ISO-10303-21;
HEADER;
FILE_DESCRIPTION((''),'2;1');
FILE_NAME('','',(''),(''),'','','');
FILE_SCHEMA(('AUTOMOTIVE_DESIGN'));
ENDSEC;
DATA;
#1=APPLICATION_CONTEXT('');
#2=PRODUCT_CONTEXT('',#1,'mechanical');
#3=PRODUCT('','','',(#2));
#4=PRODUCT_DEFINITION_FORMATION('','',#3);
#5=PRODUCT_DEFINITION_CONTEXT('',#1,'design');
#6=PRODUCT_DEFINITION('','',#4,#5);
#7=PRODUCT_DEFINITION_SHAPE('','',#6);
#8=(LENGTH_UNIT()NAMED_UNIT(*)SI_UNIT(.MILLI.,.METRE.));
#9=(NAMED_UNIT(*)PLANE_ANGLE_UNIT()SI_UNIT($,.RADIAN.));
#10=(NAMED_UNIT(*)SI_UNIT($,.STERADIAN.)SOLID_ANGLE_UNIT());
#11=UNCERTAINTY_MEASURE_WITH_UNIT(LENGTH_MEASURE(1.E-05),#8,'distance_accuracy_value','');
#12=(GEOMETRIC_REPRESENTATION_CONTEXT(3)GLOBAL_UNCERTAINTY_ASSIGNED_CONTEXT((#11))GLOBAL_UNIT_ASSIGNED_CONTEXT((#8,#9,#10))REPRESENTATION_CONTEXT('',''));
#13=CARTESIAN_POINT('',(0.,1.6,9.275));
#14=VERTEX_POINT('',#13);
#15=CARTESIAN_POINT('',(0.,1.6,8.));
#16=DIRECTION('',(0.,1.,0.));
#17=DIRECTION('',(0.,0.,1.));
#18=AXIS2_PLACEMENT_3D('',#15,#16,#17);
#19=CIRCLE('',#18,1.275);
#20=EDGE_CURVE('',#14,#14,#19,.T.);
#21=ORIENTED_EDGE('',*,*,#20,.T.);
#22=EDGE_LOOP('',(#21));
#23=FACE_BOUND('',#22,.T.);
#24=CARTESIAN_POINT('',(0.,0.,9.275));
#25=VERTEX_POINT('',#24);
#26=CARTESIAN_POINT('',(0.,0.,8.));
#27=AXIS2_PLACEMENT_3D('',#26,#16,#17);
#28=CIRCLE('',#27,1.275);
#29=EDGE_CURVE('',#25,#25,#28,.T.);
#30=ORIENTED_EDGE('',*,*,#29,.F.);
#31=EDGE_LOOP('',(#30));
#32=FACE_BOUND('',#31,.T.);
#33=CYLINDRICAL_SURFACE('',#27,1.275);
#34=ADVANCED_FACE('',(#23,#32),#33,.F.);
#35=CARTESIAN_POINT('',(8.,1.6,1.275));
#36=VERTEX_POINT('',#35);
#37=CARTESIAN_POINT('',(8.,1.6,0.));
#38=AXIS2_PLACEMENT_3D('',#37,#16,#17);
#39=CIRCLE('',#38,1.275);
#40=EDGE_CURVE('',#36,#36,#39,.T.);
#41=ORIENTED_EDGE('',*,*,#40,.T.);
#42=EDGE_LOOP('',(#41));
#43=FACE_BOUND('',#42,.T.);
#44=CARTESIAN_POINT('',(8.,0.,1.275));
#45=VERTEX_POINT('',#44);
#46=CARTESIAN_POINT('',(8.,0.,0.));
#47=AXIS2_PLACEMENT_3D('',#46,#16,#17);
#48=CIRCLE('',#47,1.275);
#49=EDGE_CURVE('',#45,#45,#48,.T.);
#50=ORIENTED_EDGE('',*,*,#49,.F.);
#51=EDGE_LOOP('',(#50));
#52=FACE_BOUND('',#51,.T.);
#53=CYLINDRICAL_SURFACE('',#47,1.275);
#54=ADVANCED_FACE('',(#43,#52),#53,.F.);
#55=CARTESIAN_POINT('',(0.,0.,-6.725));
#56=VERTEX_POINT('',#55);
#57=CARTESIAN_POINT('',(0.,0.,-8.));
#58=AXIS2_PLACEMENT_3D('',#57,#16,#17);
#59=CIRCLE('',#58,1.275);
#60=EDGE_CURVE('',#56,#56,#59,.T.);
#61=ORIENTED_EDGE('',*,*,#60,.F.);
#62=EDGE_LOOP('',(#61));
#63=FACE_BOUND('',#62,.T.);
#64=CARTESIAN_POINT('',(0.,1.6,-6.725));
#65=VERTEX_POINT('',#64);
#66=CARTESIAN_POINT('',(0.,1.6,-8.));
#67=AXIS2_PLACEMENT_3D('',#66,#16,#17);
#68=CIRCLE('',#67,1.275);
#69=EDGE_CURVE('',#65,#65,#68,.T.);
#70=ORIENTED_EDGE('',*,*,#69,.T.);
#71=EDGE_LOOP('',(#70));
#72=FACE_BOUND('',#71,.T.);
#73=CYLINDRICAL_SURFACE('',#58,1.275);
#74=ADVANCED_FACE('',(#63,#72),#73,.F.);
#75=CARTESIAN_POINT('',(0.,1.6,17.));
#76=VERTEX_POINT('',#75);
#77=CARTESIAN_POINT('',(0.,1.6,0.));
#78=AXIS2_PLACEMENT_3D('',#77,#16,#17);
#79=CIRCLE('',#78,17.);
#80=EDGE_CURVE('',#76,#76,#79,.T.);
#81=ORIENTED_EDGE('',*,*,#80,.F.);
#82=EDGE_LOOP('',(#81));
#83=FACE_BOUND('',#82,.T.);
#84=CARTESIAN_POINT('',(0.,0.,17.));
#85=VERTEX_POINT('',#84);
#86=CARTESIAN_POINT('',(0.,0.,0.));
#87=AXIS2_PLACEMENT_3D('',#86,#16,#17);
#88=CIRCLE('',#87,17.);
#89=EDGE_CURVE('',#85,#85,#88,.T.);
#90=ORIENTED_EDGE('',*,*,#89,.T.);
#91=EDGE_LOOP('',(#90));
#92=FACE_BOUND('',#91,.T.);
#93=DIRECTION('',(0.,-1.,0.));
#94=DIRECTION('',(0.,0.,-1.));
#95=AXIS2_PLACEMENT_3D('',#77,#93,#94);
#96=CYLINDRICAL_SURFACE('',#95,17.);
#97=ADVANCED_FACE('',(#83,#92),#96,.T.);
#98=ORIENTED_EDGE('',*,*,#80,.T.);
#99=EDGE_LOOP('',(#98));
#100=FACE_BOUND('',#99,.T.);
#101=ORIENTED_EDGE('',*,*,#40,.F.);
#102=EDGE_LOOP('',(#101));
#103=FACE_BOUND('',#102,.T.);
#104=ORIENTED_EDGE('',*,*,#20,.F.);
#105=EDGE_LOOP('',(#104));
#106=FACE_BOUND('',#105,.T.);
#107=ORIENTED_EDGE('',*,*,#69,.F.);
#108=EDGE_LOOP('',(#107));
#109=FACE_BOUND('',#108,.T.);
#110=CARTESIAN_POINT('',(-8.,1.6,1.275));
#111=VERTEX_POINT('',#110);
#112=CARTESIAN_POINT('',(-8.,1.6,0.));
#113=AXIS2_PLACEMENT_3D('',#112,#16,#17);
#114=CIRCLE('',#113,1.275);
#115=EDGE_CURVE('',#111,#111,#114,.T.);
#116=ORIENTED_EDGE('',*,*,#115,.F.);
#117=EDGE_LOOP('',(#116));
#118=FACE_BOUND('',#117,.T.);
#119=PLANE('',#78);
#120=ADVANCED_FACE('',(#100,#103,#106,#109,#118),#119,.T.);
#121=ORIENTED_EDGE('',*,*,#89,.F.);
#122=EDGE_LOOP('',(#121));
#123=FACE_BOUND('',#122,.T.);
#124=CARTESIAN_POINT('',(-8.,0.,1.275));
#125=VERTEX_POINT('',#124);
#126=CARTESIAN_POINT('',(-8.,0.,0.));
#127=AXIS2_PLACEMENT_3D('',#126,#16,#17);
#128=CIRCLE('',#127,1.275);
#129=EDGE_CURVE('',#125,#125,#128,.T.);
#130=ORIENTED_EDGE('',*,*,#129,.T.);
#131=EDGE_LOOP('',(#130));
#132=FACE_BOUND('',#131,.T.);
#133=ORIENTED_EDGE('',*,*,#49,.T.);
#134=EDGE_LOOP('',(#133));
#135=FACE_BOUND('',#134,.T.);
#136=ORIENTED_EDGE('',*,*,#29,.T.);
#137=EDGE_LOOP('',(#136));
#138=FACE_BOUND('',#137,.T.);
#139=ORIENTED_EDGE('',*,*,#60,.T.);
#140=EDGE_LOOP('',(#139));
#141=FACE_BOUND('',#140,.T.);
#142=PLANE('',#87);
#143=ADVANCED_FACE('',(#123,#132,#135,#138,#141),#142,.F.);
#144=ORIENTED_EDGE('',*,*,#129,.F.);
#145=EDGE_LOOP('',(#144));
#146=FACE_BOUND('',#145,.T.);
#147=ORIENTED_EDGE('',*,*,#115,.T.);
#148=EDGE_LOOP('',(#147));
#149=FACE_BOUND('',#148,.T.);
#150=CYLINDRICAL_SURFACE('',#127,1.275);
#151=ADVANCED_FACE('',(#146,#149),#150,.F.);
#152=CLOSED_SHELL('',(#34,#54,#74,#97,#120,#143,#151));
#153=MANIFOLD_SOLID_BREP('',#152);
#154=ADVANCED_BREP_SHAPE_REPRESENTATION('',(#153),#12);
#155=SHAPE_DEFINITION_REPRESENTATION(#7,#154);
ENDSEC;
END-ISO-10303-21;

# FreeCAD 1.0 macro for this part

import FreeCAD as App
import Part
import Sketcher
from FreeCAD import Vector

doc = App.newDocument("Part")
params = doc.addObject("Spreadsheet::Sheet", "Params")
for row, (alias, value) in enumerate([
    ("sketch1_diameter", "34 mm"),
    ("pad1_length", "1.6 mm"),
    ("sketch2_diameter", "2.55 mm"),
], start=1):
    params.set(f"A{row}", alias)
    params.set(f"B{row}", "=" + value)
    params.setAlias(f"B{row}", alias)

body = doc.addObject("PartDesign::Body", "Body")

sketch1 = body.newObject("Sketcher::SketchObject", "Sketch")
sketch1.AttachmentSupport = (doc.getObject("XZ_Plane"), [""])
sketch1.MapMode = "FlatFace"
sketch1.addGeometry(Part.Circle(Vector(0, 0, 0), Vector(0, 0, 1), 17), False)
sketch1.addConstraint(Sketcher.Constraint("Coincident", 0, 3, -1, 1))
sketch1.addConstraint(Sketcher.Constraint("Diameter", 0, 34.0))
sketch1.setExpression("Constraints[1]", "Params.sketch1_diameter")
pad1 = body.newObject("PartDesign::Pad", "Pad")
pad1.Profile = sketch1
pad1.setExpression("Length", "Params.pad1_length")
pad1.Reversed = True

sketch2 = body.newObject("Sketcher::SketchObject", "Sketch001")
sketch2.AttachmentSupport = (doc.getObject("XZ_Plane"), [""])
sketch2.MapMode = "FlatFace"
sketch2.AttachmentOffset = App.Placement(Vector(0, 0, -1.6), App.Rotation())
sketch2.addGeometry(Part.Circle(Vector(8, 0, 0), Vector(0, 0, 1), 1.275), False)
sketch2.addGeometry(Part.Circle(Vector(0, 8, 0), Vector(0, 0, 1), 1.275), False)
sketch2.addGeometry(Part.Circle(Vector(-8, 0, 0), Vector(0, 0, 1), 1.275), False)
sketch2.addGeometry(Part.Circle(Vector(0, -8, 0), Vector(0, 0, 1), 1.275), False)
sketch2.addConstraint(Sketcher.Constraint("Equal", 0, 1))
sketch2.addConstraint(Sketcher.Constraint("Equal", 1, 2))
sketch2.addConstraint(Sketcher.Constraint("Equal", 2, 3))
sketch2.addConstraint(Sketcher.Constraint("Symmetric", 0, 3, 2, 3, -1, 1))
sketch2.addConstraint(Sketcher.Constraint("Symmetric", 1, 3, 3, 3, -1, 1))
sketch2.addConstraint(Sketcher.Constraint("PointOnObject", 0, 3, -1))
sketch2.addConstraint(Sketcher.Constraint("PointOnObject", 1, 3, -2))
sketch2.addConstraint(Sketcher.Constraint("Diameter", 0, 2.55))
sketch2.addConstraint(Sketcher.Constraint("DistanceX", -1, 1, 0, 3, 8.0))
sketch2.addConstraint(Sketcher.Constraint("DistanceY", -1, 1, 1, 3, 8.0))
sketch2.setExpression("Constraints[7]", "Params.sketch2_diameter")
pocket1 = body.newObject("PartDesign::Pocket", "Pocket")
pocket1.Profile = sketch2
pocket1.Type = "ThroughAll"
pocket1.Reversed = True

doc.recompute()
